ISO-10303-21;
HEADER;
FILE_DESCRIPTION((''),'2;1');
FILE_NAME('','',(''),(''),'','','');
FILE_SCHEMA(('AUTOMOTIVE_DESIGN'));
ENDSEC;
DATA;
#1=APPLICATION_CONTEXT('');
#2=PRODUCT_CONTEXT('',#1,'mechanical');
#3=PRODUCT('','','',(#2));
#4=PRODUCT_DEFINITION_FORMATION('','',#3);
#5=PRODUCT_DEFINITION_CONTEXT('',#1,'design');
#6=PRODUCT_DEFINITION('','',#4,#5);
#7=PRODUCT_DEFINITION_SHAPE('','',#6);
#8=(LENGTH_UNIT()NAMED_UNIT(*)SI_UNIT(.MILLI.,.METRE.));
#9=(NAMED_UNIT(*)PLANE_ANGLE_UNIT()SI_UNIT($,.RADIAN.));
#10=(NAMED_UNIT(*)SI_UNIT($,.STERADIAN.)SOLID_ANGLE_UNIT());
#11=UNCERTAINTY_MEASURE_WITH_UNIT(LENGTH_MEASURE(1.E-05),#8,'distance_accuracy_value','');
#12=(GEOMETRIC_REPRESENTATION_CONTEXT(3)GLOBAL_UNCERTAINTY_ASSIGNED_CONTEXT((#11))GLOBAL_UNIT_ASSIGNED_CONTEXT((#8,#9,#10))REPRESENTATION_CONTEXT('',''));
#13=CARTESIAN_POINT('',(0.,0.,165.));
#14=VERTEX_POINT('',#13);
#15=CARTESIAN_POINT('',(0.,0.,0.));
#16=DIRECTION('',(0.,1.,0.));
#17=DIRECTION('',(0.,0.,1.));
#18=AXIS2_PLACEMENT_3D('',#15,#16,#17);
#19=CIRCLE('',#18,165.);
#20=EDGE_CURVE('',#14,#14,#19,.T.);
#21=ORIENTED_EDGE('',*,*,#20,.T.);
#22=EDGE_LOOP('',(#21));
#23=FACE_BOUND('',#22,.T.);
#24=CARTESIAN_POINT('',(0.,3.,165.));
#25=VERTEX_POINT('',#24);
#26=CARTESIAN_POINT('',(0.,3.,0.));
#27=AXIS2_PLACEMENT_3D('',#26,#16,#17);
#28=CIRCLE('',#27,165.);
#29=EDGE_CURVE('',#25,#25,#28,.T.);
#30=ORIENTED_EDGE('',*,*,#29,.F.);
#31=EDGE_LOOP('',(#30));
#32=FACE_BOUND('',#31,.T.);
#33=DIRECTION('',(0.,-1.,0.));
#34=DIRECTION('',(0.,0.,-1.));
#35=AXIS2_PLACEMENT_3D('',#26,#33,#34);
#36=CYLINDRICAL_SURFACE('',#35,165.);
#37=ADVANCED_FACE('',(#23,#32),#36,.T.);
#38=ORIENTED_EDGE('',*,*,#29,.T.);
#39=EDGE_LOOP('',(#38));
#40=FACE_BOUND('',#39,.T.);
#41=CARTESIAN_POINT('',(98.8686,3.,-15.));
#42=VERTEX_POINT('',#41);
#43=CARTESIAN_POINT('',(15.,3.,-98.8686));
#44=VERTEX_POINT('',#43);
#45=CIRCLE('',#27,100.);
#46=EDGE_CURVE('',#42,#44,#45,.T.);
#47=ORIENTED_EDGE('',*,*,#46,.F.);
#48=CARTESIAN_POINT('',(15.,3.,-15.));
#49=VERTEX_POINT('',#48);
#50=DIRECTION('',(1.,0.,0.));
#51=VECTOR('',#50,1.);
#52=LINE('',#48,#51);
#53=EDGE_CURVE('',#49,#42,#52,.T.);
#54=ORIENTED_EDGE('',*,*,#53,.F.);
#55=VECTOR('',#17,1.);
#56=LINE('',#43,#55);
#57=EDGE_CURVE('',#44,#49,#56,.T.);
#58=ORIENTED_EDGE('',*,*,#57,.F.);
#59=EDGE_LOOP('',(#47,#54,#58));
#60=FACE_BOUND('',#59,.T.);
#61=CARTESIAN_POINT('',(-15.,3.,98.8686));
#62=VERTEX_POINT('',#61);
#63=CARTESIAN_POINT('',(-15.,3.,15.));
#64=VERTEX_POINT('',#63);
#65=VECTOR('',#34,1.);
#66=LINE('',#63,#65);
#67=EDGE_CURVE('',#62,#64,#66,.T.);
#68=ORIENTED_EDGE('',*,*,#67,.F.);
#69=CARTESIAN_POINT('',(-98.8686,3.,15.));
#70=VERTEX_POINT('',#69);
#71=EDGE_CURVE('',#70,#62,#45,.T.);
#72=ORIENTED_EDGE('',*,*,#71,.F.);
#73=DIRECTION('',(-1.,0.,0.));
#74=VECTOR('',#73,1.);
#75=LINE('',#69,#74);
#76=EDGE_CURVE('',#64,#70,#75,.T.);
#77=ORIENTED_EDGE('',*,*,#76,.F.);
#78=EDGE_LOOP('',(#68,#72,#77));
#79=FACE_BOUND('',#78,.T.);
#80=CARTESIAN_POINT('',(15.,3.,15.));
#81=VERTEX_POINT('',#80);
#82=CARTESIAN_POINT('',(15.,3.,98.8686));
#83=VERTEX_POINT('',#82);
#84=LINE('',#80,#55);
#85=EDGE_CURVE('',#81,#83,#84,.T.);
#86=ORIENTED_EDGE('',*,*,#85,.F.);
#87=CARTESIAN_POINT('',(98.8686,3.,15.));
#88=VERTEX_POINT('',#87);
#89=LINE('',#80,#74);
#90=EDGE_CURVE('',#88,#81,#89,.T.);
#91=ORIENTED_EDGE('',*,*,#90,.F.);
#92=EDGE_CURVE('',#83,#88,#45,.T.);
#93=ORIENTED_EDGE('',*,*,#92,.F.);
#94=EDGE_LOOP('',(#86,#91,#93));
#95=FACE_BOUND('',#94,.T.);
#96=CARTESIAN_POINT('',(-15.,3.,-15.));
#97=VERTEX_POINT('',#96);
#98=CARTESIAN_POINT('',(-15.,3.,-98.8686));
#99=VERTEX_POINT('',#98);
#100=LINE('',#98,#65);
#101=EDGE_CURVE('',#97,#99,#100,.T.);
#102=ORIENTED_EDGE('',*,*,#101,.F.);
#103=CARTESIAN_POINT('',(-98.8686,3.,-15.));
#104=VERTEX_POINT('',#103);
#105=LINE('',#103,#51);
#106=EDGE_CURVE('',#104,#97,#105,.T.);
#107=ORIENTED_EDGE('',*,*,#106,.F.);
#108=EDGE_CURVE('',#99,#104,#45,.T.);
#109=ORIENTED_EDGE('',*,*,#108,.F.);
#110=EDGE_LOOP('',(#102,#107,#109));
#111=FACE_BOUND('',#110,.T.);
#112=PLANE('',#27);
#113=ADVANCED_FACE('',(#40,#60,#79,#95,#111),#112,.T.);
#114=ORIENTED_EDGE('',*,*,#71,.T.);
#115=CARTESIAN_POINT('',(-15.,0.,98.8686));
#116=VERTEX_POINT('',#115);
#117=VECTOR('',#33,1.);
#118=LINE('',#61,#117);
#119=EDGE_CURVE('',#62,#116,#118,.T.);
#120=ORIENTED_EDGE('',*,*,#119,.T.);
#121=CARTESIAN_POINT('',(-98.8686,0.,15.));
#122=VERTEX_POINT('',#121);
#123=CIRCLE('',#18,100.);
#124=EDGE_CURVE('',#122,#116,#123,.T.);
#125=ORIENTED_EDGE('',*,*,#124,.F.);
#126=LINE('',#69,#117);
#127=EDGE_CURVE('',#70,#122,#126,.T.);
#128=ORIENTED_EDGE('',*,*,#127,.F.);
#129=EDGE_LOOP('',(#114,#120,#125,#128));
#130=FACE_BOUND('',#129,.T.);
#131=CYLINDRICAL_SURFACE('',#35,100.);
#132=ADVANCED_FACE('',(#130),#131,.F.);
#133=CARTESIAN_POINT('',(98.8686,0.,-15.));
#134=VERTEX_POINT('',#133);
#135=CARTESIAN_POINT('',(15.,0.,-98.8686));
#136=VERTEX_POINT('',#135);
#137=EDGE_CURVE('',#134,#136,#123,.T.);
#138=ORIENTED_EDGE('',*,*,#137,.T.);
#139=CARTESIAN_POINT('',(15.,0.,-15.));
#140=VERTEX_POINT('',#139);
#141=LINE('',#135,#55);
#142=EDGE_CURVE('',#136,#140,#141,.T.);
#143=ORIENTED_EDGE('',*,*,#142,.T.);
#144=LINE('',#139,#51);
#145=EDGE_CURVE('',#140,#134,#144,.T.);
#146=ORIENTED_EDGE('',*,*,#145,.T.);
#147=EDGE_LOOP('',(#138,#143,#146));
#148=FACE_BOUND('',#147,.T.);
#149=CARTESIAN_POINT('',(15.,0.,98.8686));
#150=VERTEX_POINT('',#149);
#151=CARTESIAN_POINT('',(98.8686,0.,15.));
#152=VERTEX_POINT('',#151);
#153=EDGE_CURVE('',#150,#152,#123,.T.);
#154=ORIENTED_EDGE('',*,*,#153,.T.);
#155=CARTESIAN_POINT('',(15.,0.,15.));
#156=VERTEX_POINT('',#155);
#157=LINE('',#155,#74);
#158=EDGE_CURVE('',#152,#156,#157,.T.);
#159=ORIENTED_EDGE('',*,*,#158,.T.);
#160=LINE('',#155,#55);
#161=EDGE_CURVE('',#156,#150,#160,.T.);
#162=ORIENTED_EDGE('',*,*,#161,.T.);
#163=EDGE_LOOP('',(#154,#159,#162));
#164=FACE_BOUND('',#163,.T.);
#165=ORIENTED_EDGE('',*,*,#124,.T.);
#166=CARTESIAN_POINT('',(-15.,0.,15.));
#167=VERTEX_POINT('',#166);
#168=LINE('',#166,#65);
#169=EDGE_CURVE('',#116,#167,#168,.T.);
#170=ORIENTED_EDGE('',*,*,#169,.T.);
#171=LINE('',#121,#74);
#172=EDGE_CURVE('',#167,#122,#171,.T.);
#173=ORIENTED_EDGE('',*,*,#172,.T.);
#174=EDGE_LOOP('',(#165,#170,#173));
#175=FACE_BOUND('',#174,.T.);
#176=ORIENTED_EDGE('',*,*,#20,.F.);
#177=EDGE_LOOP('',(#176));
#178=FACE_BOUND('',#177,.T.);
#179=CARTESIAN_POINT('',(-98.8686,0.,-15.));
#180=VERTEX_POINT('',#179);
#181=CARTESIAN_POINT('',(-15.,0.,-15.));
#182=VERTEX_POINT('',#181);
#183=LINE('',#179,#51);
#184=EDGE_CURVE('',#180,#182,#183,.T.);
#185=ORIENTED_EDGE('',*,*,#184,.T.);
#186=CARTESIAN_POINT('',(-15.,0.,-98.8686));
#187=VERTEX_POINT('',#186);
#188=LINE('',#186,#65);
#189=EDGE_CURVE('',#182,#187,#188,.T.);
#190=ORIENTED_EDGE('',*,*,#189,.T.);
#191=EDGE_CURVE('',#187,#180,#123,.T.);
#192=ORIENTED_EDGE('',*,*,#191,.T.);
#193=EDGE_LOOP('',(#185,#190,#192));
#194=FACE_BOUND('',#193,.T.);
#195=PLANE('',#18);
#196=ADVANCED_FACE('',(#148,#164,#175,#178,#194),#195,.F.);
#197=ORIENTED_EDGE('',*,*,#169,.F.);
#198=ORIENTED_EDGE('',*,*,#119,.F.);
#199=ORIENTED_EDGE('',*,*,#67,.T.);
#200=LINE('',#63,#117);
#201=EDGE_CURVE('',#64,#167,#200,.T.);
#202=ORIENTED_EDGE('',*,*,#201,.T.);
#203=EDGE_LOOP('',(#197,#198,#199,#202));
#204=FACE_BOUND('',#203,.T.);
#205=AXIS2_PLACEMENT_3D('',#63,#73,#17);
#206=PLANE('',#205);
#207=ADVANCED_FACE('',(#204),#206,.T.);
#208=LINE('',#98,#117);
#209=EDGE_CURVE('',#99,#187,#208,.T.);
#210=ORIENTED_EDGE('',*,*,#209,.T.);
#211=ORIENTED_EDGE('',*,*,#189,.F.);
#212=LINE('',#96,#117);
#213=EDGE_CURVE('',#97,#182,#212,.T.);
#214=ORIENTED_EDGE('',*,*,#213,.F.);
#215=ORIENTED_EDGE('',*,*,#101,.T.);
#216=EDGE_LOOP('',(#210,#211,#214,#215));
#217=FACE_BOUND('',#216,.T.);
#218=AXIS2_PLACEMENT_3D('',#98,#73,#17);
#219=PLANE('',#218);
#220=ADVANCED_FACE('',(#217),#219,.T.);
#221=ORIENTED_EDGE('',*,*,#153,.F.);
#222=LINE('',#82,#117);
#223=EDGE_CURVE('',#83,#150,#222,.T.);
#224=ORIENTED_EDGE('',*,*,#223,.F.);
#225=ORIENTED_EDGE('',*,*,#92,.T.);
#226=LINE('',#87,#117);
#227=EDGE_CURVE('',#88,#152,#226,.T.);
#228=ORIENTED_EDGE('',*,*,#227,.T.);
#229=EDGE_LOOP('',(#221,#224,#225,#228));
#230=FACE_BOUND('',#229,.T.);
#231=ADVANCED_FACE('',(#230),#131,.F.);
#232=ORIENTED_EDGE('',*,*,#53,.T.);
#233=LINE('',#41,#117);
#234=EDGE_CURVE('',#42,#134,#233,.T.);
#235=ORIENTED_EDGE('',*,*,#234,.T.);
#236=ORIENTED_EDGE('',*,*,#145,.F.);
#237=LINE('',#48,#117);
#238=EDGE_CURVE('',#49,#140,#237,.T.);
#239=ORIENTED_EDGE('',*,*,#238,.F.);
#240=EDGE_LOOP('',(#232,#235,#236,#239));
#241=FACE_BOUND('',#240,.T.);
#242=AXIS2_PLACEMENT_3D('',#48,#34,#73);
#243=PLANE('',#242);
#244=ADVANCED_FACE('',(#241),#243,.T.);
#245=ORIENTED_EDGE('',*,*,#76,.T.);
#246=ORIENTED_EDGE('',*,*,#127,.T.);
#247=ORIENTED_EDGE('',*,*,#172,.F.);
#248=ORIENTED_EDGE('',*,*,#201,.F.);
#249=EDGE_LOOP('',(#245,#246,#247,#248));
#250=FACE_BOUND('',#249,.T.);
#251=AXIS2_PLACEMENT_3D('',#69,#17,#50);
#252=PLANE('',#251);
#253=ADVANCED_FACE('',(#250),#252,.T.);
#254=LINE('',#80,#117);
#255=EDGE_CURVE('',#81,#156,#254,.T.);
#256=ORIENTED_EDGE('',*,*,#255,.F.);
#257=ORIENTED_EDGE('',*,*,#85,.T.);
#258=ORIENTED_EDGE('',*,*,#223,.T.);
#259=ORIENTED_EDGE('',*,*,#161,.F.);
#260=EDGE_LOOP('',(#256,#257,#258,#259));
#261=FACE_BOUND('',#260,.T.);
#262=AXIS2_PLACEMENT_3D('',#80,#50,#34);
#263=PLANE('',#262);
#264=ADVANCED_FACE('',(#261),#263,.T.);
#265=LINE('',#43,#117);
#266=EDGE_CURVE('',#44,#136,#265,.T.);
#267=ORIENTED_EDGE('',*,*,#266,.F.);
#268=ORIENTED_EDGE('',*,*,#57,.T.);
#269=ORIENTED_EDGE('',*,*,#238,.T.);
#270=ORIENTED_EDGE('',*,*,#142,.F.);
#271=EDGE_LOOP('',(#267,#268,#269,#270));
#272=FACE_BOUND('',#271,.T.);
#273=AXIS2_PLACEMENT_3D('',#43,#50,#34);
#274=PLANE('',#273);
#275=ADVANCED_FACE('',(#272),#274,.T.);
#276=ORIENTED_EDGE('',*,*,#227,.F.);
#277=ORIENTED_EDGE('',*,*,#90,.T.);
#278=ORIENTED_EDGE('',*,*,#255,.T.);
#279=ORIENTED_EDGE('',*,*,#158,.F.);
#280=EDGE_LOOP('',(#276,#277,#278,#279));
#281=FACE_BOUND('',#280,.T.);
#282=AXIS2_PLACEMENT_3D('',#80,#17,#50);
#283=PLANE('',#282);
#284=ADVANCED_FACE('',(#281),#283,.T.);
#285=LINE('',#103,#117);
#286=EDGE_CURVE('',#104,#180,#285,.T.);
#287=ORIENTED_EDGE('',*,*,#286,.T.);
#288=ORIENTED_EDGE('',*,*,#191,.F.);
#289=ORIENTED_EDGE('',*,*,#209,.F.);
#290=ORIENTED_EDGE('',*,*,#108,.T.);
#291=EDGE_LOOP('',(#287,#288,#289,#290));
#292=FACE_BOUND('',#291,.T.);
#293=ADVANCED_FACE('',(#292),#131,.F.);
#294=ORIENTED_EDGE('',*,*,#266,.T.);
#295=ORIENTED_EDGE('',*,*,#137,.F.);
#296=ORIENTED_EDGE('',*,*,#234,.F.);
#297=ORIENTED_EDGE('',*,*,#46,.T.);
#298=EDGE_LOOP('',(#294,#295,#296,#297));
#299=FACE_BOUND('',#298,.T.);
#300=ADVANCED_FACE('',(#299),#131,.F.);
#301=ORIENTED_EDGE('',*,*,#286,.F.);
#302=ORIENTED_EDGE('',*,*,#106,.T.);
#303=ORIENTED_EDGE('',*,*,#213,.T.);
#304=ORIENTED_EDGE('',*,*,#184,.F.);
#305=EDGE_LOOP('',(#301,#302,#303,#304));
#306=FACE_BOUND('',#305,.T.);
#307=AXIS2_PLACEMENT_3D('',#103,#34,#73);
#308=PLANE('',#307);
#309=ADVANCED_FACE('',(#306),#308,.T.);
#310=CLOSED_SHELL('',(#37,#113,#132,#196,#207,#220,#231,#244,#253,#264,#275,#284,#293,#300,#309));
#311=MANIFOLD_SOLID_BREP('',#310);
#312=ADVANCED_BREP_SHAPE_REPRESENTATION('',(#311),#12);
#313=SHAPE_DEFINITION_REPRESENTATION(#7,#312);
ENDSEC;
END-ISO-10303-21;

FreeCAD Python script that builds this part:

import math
import FreeCAD as App
import Part
import Sketcher

V = App.Vector

doc = App.newDocument("Part")
body = doc.addObject("PartDesign::Body", "Body")

# Sketch on XZ plane
sketch1 = body.newObject("Sketcher::SketchObject", "Sketch")
sketch1.AttachmentSupport = (doc.getObject("XZ_Plane"), [""])
sketch1.MapMode = "FlatFace"
sketch1.addGeometry([
    Part.Circle(V(0, 0, 0), V(0, 0, 1), 165),  # 0
    Part.ArcOfCircle(Part.Circle(V(0, 0, 0), V(0, 0, 1), 100), math.radians(-171), math.radians(-99)),  # 1
    Part.LineSegment(V(-15, -99, 0), V(-15, -15, 0)),  # 2
    Part.LineSegment(V(-15, -15, 0), V(-99, -15, 0)),  # 3
    Part.ArcOfCircle(Part.Circle(V(0, 0, 0), V(0, 0, 1), 100), math.radians(99), math.radians(171)),  # 4
    Part.LineSegment(V(-99, 15, 0), V(-15, 15, 0)),  # 5
    Part.LineSegment(V(-15, 15, 0), V(-15, 99, 0)),  # 6
    Part.LineSegment(V(15, -15, 0), V(15, -99, 0)),  # 7
    Part.ArcOfCircle(Part.Circle(V(0, 0, 0), V(0, 0, 1), 100), math.radians(-81), math.radians(-9)),  # 8
    Part.LineSegment(V(99, -15, 0), V(15, -15, 0)),  # 9
    Part.LineSegment(V(15, 99, 0), V(15, 15, 0)),  # 10
    Part.LineSegment(V(15, 15, 0), V(99, 15, 0)),  # 11
    Part.ArcOfCircle(Part.Circle(V(0, 0, 0), V(0, 0, 1), 100), math.radians(9), math.radians(81)),  # 12
], False)
sketch1.addConstraint([
    Sketcher.Constraint("Coincident", 1, 2, 2, 1),
    Sketcher.Constraint("Coincident", 2, 2, 3, 1),
    Sketcher.Constraint("Coincident", 3, 2, 1, 1),
    Sketcher.Constraint("Coincident", 4, 2, 5, 1),
    Sketcher.Constraint("Coincident", 5, 2, 6, 1),
    Sketcher.Constraint("Coincident", 6, 2, 4, 1),
    Sketcher.Constraint("Coincident", 7, 2, 8, 1),
    Sketcher.Constraint("Coincident", 8, 2, 9, 1),
    Sketcher.Constraint("Coincident", 9, 2, 7, 1),
    Sketcher.Constraint("Coincident", 10, 2, 11, 1),
    Sketcher.Constraint("Coincident", 11, 2, 12, 1),
    Sketcher.Constraint("Coincident", 12, 2, 10, 1),
    Sketcher.Constraint("Vertical", 2),
    Sketcher.Constraint("Horizontal", 3),
    Sketcher.Constraint("Horizontal", 5),
    Sketcher.Constraint("Vertical", 6),
    Sketcher.Constraint("Vertical", 7),
    Sketcher.Constraint("Horizontal", 9),
    Sketcher.Constraint("Vertical", 10),
    Sketcher.Constraint("Horizontal", 11),
    Sketcher.Constraint("Coincident", 0, 3, -1, 1),
    Sketcher.Constraint("Coincident", 1, 3, -1, 1),
    Sketcher.Constraint("Coincident", 4, 3, -1, 1),
    Sketcher.Constraint("Coincident", 8, 3, -1, 1),
    Sketcher.Constraint("Coincident", 12, 3, -1, 1),
    Sketcher.Constraint("Equal", 1, 4),
    Sketcher.Constraint("Equal", 4, 8),
    Sketcher.Constraint("Equal", 8, 12),
    Sketcher.Constraint("Symmetric", 5, 2, 9, 2, -1, 1),
    Sketcher.Constraint("Symmetric", 2, 2, 10, 2, -1, 1),
    Sketcher.Constraint("Symmetric", 2, 2, 9, 2, -2),
    Sketcher.Constraint("Equal", 11, 2),
    Sketcher.Constraint("Diameter", 0, 330.0),
    Sketcher.Constraint("Radius", 1, 100.0),
    Sketcher.Constraint("DistanceX", 1, 2, -1, 1, 15.0),
])
pad1 = body.newObject("PartDesign::Pad", "Pad")
pad1.Profile = sketch1
pad1.Length = 3
pad1.Reversed = True

doc.recompute()
